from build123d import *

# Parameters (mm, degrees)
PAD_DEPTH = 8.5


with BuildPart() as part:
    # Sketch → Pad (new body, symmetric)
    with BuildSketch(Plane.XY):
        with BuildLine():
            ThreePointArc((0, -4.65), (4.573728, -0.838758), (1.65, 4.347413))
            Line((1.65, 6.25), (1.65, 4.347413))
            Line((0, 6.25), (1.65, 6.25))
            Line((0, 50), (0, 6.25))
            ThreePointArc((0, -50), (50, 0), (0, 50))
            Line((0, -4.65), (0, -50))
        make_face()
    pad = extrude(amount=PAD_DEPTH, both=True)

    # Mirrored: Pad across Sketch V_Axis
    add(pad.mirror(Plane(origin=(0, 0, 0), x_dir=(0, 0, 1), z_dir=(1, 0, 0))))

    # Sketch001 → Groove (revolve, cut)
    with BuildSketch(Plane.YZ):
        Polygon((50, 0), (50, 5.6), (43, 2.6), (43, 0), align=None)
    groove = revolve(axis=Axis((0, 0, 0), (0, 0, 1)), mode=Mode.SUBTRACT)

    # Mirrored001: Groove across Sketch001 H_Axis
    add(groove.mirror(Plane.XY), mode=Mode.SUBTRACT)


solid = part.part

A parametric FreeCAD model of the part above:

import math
import FreeCAD as App
import Part
import Sketcher

V = App.Vector


def add_polygon(sketch, points):
    """Adds a closed chain of lines whose ends are joined by coincident constraints."""
    first, n = sketch.GeometryCount, len(points)
    for a, b in zip(points, points[1:] + points[:1]):
        sketch.addGeometry(Part.LineSegment(App.Vector(*a, 0), App.Vector(*b, 0)), False)
    for i in range(n):
        sketch.addConstraint(Sketcher.Constraint("Coincident", first + i, 2, first + (i + 1) % n, 1))

doc = App.newDocument("Part")
body = doc.addObject("PartDesign::Body", "Body")

sketch1 = doc.addObject("Sketcher::SketchObject", "Sketch")
body.addObject(sketch1)
sketch1.AttachmentSupport = (doc.XY_Plane, [""])
sketch1.MapMode = "FlatFace"
sketch1.addGeometry([
    Part.ArcOfCircle(Part.Circle(V(0, 0, 0), V(0, 0, 1), 4.65), math.radians(-90.000005), math.radians(69.216445)),
    Part.LineSegment(V(0, -4.65, 0), V(0, -50, 0)),
    Part.ArcOfCircle(Part.Circle(V(0, 0, 0), V(0, 0, 1), 50), math.radians(-90), math.radians(90)),
    Part.LineSegment(V(0, 50, 0), V(0, 6.25, 0)),
    Part.LineSegment(V(0, 6.25, 0), V(1.65, 6.25, 0)),
    Part.LineSegment(V(1.65, 6.25, 0), V(1.65, 4.347413, 0)),
], False)
sketch1.addConstraint([
    Sketcher.Constraint("Coincident", 0, 1, 1, 1),
    Sketcher.Constraint("Coincident", 1, 2, 2, 1),
    Sketcher.Constraint("Coincident", 2, 2, 3, 1),
    Sketcher.Constraint("Coincident", 3, 2, 4, 1),
    Sketcher.Constraint("Coincident", 4, 2, 5, 1),
    Sketcher.Constraint("Coincident", 5, 2, 0, 2),
    Sketcher.Constraint("Vertical", 1),
    Sketcher.Constraint("Vertical", 3),
    Sketcher.Constraint("Horizontal", 4),
    Sketcher.Constraint("Vertical", 5),
    Sketcher.Constraint("Coincident", 0, 3, -1, 1),
    Sketcher.Constraint("Coincident", 2, 3, -1, 1),
    Sketcher.Constraint("PointOnObject", 0, 1, -2),
    Sketcher.Constraint("PointOnObject", 2, 2, -2),
    Sketcher.Constraint("Radius", 2, 50.0),
    Sketcher.Constraint("Radius", 0, 4.65),
    Sketcher.Constraint("DistanceX", 4, 1, 4, 2, 1.65),
    Sketcher.Constraint("DistanceY", 3, 2, 3, 1, 43.75),
])
pad1 = doc.addObject("PartDesign::Pad", "Pad")
body.addObject(pad1)
pad1.Profile = sketch1
pad1.Length = 17
pad1.Midplane = True
doc.recompute()

mirrored = doc.addObject("PartDesign::Mirrored", "Mirrored")
body.addObject(mirrored)
mirrored.Originals = [pad1]
mirrored.MirrorPlane = (doc.YZ_Plane, [""])
body.Tip = mirrored

sketch2 = doc.addObject("Sketcher::SketchObject", "Sketch001")
body.addObject(sketch2)
sketch2.AttachmentSupport = (doc.YZ_Plane, [""])
sketch2.MapMode = "FlatFace"
add_polygon(sketch2, [(50, 0), (50, 5.6), (43, 2.6), (43, 0)])
sketch2.addConstraint([
    Sketcher.Constraint("Vertical", 0),
    Sketcher.Constraint("Vertical", 2),
    Sketcher.Constraint("Horizontal", 3),
    Sketcher.Constraint("PointOnObject", 2, 2, -1),
    Sketcher.Constraint("DistanceX", 3, 1, 3, 2, 7.0),
    Sketcher.Constraint("DistanceY", 0, 1, 0, 2, 5.6),
    Sketcher.Constraint("DistanceY", 2, 2, 2, 1, 2.6),
    Sketcher.Constraint("DistanceX", -1, 1, 0, 2, 50.0),
])
groove = doc.addObject("PartDesign::Groove", "Groove")
body.addObject(groove)
groove.Profile = sketch2
groove.ReferenceAxis = (sketch2, ["V_Axis"])
groove.Angle = 360
doc.recompute()

mirrored2 = doc.addObject("PartDesign::Mirrored", "Mirrored001")
body.addObject(mirrored2)
mirrored2.Originals = [groove]
mirrored2.MirrorPlane = (doc.XY_Plane, [""])
body.Tip = mirrored2

doc.recompute()
